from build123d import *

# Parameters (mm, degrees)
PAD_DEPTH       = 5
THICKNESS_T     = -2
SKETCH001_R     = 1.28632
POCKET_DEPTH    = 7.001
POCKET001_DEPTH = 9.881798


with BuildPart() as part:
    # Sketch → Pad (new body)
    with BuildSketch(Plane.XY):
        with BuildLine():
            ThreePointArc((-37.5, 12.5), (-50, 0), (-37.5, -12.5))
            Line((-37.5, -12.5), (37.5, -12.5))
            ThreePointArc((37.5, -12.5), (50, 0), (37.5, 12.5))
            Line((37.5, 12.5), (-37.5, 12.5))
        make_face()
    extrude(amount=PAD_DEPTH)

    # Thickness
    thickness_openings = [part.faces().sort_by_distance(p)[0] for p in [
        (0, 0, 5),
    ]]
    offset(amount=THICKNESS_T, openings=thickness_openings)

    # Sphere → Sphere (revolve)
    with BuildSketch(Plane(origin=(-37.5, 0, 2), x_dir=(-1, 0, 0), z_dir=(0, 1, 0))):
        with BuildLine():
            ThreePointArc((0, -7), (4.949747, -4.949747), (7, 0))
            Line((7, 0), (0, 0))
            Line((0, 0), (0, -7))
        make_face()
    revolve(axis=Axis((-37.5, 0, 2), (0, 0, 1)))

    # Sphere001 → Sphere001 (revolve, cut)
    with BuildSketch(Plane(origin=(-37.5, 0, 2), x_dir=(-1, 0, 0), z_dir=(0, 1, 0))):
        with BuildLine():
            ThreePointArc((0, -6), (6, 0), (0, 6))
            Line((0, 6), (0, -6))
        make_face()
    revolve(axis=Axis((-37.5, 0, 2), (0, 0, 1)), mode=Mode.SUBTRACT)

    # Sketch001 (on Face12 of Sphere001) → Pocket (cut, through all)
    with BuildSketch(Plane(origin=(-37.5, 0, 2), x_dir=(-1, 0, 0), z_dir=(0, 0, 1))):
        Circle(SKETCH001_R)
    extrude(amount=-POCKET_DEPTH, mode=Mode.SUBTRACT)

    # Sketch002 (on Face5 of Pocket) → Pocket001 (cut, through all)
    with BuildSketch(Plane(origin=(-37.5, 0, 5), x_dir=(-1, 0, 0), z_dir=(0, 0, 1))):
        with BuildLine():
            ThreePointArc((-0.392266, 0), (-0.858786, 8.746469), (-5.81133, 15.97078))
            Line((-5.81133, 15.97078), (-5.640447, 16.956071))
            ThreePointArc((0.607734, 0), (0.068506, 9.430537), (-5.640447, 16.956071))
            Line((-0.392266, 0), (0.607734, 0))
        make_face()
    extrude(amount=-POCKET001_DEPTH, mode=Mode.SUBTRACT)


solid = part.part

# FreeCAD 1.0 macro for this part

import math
import FreeCAD as App
import Part
import Sketcher
Q = App.Units.Quantity


def faces_at(feature, points):
    """Names of the faces that lie closest to the given points."""
    faces = feature.Shape.Faces
    near = lambda p: min(range(len(faces)), key=lambda i: faces[i].distToShape(Part.Vertex(*p))[0])
    return sorted({f"Face{near(p) + 1}" for p in points})

doc = App.newDocument("Part")
body = doc.addObject("PartDesign::Body", "Body")

# Sketch on XY plane
sketch1 = body.newObject("Sketcher::SketchObject", "Sketch")
sketch1.AttachmentSupport = (doc.getObject("XY_Plane"), [""])
sketch1.MapMode = "FlatFace"
sketch1.addGeometry([
    Part.ArcOfCircle(Part.Circle(App.Vector(-38, 0, 0), App.Vector(0, 0, 1), 12), math.radians(90), math.radians(270)),
    Part.LineSegment(App.Vector(-38, -12, 0), App.Vector(38, -12, 0)),
    Part.ArcOfCircle(Part.Circle(App.Vector(38, 0, 0), App.Vector(0, 0, 1), 12), math.radians(-90), math.radians(90)),
    Part.LineSegment(App.Vector(38, 12, 0), App.Vector(-38, 12, 0)),
], False)
sketch1.addConstraint([
    Sketcher.Constraint("Tangent", 0, 2, 1, 1),
    Sketcher.Constraint("Tangent", 1, 2, 2, 1),
    Sketcher.Constraint("Tangent", 2, 2, 3, 1),
    Sketcher.Constraint("Tangent", 3, 2, 0, 1),
    Sketcher.Constraint("Horizontal", 1),
    Sketcher.Constraint("Horizontal", 3),
    Sketcher.Constraint("Symmetric", 0, 3, 2, 3, -1, 1),
    Sketcher.Constraint("Radius", 0, Q("12.5 mm")),
    Sketcher.Constraint("DistanceX", 1, 1, 1, 2, Q("75 mm")),
])
pad1 = body.newObject("PartDesign::Pad", "Pad")
pad1.Profile = sketch1
pad1.Length = 5
doc.recompute()

thickness = body.newObject("PartDesign::Thickness", "Thickness")
thickness.Base = (pad1, faces_at(pad1, [(0, 0, 5)]))
thickness.Value = 2
thickness.Reversed = True
thickness.Join = "Arc"

# Sketch on XZ plane
sketch2 = body.newObject("Sketcher::SketchObject", "Sketch001")
sketch2.AttachmentSupport = (doc.getObject("XZ_Plane"), [""])
sketch2.MapMode = "FlatFace"
sketch2.addGeometry([
    Part.ArcOfCircle(Part.Circle(App.Vector(-37, 2, 0), App.Vector(0, 0, 1), 7), math.radians(-180), math.radians(-90)),
    Part.LineSegment(App.Vector(-44, 2, 0), App.Vector(-38, 2, 0)),
    Part.LineSegment(App.Vector(-38, 2, 0), App.Vector(-38, -5, 0)),
], False)
sketch2.addGeometry(Part.LineSegment(App.Vector(-38, -5, 0), App.Vector(-38, 2, 0)), True)  # axis
sketch2.addConstraint([
    Sketcher.Constraint("Coincident", 0, 1, 1, 1),
    Sketcher.Constraint("Coincident", 1, 2, 2, 1),
    Sketcher.Constraint("Coincident", 2, 2, 0, 2),
    Sketcher.Constraint("Horizontal", 1),
    Sketcher.Constraint("Vertical", 2),
    Sketcher.Constraint("Vertical", 3),
    Sketcher.Constraint("Coincident", 1, 2, 0, 3),
    Sketcher.Constraint("Coincident", 3, 1, 2, 2),
    Sketcher.Constraint("Horizontal", 0, 1, 3, 2),
    Sketcher.Constraint("Radius", 0, Q("7.000002 mm")),
    Sketcher.Constraint("DistanceY", -1, 1, 0, 3, Q("2.000002 mm")),
    Sketcher.Constraint("DistanceX", 0, 3, -1, 1, Q("37.499998 mm")),
])
revolution = body.newObject("PartDesign::Revolution", "Revolution")
revolution.Profile = sketch2
revolution.ReferenceAxis = (sketch2, ["Axis0"])
revolution.Angle = 360

# Sketch on XZ plane
sketch3 = body.newObject("Sketcher::SketchObject", "Sketch002")
sketch3.AttachmentSupport = (doc.getObject("XZ_Plane"), [""])
sketch3.MapMode = "FlatFace"
sketch3.addGeometry([
    Part.ArcOfCircle(Part.Circle(App.Vector(-38, 2, 0), App.Vector(0, 0, 1), 6), math.radians(90), math.radians(270)),
    Part.LineSegment(App.Vector(-38, 8, 0), App.Vector(-38, -4, 0)),
], False)
sketch3.addGeometry(Part.LineSegment(App.Vector(-38, -4, 0), App.Vector(-38, 8, 0)), True)  # axis
sketch3.addConstraint([
    Sketcher.Constraint("Coincident", 0, 1, 1, 1),
    Sketcher.Constraint("Coincident", 1, 2, 0, 2),
    Sketcher.Constraint("Vertical", 1),
    Sketcher.Constraint("Vertical", 2),
    Sketcher.Constraint("Coincident", 2, 1, 1, 2),
    Sketcher.Constraint("Equal", 1, 2),
    Sketcher.Constraint("Radius", 0, Q("6 mm")),
    Sketcher.Constraint("DistanceY", -1, 1, 0, 3, Q("2 mm")),
    Sketcher.Constraint("DistanceX", 0, 3, -1, 1, Q("37.5 mm")),
    Sketcher.Constraint("DistanceX", 0, 1, -1, 1, Q("37.5 mm")),
])
groove = body.newObject("PartDesign::Groove", "Groove")
groove.Profile = sketch3
groove.ReferenceAxis = (sketch3, ["Axis0"])
groove.Angle = 360

# Sketch on XY plane
sketch4 = body.newObject("Sketcher::SketchObject", "Sketch003")
sketch4.AttachmentSupport = (doc.getObject("XY_Plane"), [""])
sketch4.MapMode = "FlatFace"
sketch4.AttachmentOffset = App.Placement(App.Vector(0, 0, 2), App.Rotation())
sketch4.addGeometry(Part.Circle(App.Vector(-37.5, 0, 0), App.Vector(0, 0, 1), 1.3), False)
sketch4.addConstraint([
    Sketcher.Constraint("PointOnObject", 0, 3, -1),
    Sketcher.Constraint("DistanceX", 0, 3, -1, 1, Q("37.5 mm")),
    Sketcher.Constraint("Diameter", 0, Q("2.57264 mm")),
])
pocket1 = body.newObject("PartDesign::Pocket", "Pocket")
pocket1.Profile = sketch4
pocket1.Type = "ThroughAll"

# Sketch on XY plane
sketch5 = body.newObject("Sketcher::SketchObject", "Sketch004")
sketch5.AttachmentSupport = (doc.getObject("XY_Plane"), [""])
sketch5.MapMode = "FlatFace"
sketch5.AttachmentOffset = App.Placement(App.Vector(0, 0, 5), App.Rotation())
sketch5.addGeometry([
    Part.ArcOfCircle(Part.Circle(App.Vector(-21.3, -3.5, 0), App.Vector(0, 0, 1), 16.2), math.radians(167), math.radians(230)),
    Part.LineSegment(App.Vector(-37.1, 0, 0), App.Vector(-38.1, 0, 0)),
    Part.ArcOfCircle(Part.Circle(App.Vector(-22.4, -3.8, 0), App.Vector(0, 0, 1), 16.2), math.radians(166), math.radians(234)),
    Part.LineSegment(App.Vector(-31.9, -17, 0), App.Vector(-31.7, -16, 0)),
], False)
sketch5.addConstraint([
    Sketcher.Constraint("Coincident", 0, 1, 1, 1),
    Sketcher.Constraint("Coincident", 1, 2, 2, 1),
    Sketcher.Constraint("Coincident", 2, 2, 3, 1),
    Sketcher.Constraint("Coincident", 3, 2, 0, 2),
    Sketcher.Constraint("Horizontal", 1),
    Sketcher.Constraint("PointOnObject", 0, 1, -1),
    Sketcher.Constraint("DistanceX", 1, 2, 1, 1, Q("1 mm")),
    Sketcher.Constraint("Distance", 3, Q("1 mm")),
    Sketcher.Constraint("Radius", 0, Q("16.194762 mm")),
    Sketcher.Constraint("Radius", 2, Q("16.194766 mm")),
    Sketcher.Constraint("DistanceY", 0, 3, -1, 1, Q("3.542801 mm")),
    Sketcher.Constraint("DistanceX", 2, 3, -1, 1, Q("22.37261 mm")),
    Sketcher.Constraint("DistanceY", 2, 2, -1, 1, Q("16.956071 mm")),
    Sketcher.Constraint("DistanceX", 3, 2, -1, 1, Q("31.68867 mm")),
])
pocket2 = body.newObject("PartDesign::Pocket", "Pocket001")
pocket2.Profile = sketch5
pocket2.Type = "ThroughAll"

doc.recompute()
